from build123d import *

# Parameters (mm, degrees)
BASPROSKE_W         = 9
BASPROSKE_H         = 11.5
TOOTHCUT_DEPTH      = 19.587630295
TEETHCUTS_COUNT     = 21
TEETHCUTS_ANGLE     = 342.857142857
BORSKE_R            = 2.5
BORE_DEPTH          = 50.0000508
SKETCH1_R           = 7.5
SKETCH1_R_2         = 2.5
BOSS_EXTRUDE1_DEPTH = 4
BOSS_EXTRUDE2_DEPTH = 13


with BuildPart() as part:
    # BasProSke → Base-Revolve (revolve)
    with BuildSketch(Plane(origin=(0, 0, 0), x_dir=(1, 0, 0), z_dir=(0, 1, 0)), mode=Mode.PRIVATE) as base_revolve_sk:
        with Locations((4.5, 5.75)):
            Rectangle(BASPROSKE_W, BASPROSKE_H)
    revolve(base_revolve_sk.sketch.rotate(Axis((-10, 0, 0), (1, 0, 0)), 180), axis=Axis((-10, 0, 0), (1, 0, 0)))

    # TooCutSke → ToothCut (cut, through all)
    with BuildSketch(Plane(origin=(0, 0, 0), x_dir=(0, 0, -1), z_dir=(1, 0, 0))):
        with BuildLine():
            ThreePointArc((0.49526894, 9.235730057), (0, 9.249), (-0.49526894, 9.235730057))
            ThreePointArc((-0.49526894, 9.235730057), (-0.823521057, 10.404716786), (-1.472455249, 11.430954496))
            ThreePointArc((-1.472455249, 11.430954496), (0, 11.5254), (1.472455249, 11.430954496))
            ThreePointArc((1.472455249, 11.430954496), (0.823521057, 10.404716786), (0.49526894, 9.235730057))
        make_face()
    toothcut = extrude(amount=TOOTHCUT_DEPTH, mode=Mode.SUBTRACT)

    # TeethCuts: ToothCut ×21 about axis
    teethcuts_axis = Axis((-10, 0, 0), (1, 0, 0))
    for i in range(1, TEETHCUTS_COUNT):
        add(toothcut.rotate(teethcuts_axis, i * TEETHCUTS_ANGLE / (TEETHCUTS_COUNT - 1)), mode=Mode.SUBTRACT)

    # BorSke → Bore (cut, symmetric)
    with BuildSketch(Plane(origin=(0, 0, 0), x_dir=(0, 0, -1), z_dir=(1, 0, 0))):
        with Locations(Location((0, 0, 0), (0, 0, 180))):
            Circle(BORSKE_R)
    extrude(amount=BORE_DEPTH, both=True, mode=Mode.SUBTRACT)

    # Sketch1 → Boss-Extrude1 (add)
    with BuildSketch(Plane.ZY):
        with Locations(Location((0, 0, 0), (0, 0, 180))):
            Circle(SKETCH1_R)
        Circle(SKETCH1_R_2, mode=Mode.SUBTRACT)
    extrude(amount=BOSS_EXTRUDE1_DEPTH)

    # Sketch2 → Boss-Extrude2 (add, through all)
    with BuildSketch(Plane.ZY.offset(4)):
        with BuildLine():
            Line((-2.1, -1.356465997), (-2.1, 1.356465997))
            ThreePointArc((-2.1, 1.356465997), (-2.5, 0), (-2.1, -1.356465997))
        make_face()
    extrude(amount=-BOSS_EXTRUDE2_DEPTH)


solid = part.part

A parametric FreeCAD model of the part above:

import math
import FreeCAD as App
import Part
import Sketcher

doc = App.newDocument("Part")
body = doc.addObject("PartDesign::Body", "Body")

sketch1 = doc.addObject("Sketcher::SketchObject", "Sketch")
body.addObject(sketch1)
sketch1.AttachmentSupport = (doc.XZ_Plane, [""])
sketch1.MapMode = "FlatFace"
sketch1.addGeometry([
    Part.LineSegment(App.Vector(0, -12, 0), App.Vector(0, 0, 0)),
    Part.LineSegment(App.Vector(0, 0, 0), App.Vector(9, 0, 0)),
    Part.LineSegment(App.Vector(9, 0, 0), App.Vector(9, -12, 0)),
    Part.LineSegment(App.Vector(9, -12, 0), App.Vector(0, -12, 0)),
], False)
sketch1.addConstraint([
    Sketcher.Constraint("Coincident", 0, 2, 1, 1),
    Sketcher.Constraint("Coincident", 1, 2, 2, 1),
    Sketcher.Constraint("Coincident", 2, 2, 3, 1),
    Sketcher.Constraint("Coincident", 3, 2, 0, 1),
    Sketcher.Constraint("Vertical", 0),
    Sketcher.Constraint("Horizontal", 1),
    Sketcher.Constraint("Vertical", 2),
    Sketcher.Constraint("Horizontal", 3),
    Sketcher.Constraint("Coincident", 0, 2, -1, 1),
    Sketcher.Constraint("DistanceX", 1, 1, 1, 2, 9.0),
    Sketcher.Constraint("DistanceY", 0, 1, 0, 2, 11.5),
])
revolution = doc.addObject("PartDesign::Revolution", "Revolution")
body.addObject(revolution)
revolution.Profile = sketch1
revolution.ReferenceAxis = (sketch1, ["H_Axis"])
revolution.Angle = 360

sketch2 = doc.addObject("Sketcher::SketchObject", "Sketch001")
body.addObject(sketch2)
sketch2.AttachmentSupport = (doc.YZ_Plane, [""])
sketch2.MapMode = "FlatFace"
sketch2.addGeometry([
    Part.ArcOfCircle(Part.Circle(App.Vector(0, 0, 0), App.Vector(0, 0, 1), 9.2), math.radians(-3.07), math.radians(3.07)),
    Part.ArcOfCircle(Part.Circle(App.Vector(8.7, -4.7, 0), App.Vector(0, 0, 1), 4.2), math.radians(49), math.radians(83)),
    Part.ArcOfCircle(Part.Circle(App.Vector(0, 0, 0), App.Vector(0, 0, 1), 11.5), math.radians(-7.34), math.radians(7.34)),
    Part.ArcOfCircle(Part.Circle(App.Vector(8.7, 4.7, 0), App.Vector(0, 0, 1), 4.2), math.radians(-83), math.radians(-49)),
], False)
sketch2.addConstraint([
    Sketcher.Constraint("Coincident", 0, 1, 1, 2),
    Sketcher.Constraint("Coincident", 1, 1, 2, 1),
    Sketcher.Constraint("Coincident", 2, 2, 3, 2),
    Sketcher.Constraint("Coincident", 3, 1, 0, 2),
    Sketcher.Constraint("Coincident", 0, 3, -1, 1),
    Sketcher.Constraint("Coincident", 2, 3, -1, 1),
    Sketcher.Constraint("Equal", 1, 3),
    Sketcher.Constraint("Symmetric", 1, 3, 3, 3, -1),
    Sketcher.Constraint("Radius", 1, 4.2),
    Sketcher.Constraint("Radius", 0, 9.249),
    Sketcher.Constraint("Radius", 2, 11.5254),
    Sketcher.Constraint("DistanceX", -1, 1, 1, 3, 8.696701),
    Sketcher.Constraint("DistanceX", -1, 1, 0, 1, 9.23573),
])
pocket1 = doc.addObject("PartDesign::Pocket", "Pocket")
body.addObject(pocket1)
pocket1.Profile = sketch2
pocket1.Type = "ThroughAll"
pocket1.Reversed = True
doc.recompute()

polarpattern = doc.addObject("PartDesign::PolarPattern", "PolarPattern")
body.addObject(polarpattern)
polarpattern.Originals = [pocket1]
polarpattern.Axis = (doc.X_Axis, [""])
polarpattern.Angle = 360
polarpattern.Occurrences = 21
body.Tip = polarpattern

sketch3 = doc.addObject("Sketcher::SketchObject", "Sketch002")
body.addObject(sketch3)
sketch3.AttachmentSupport = (doc.YZ_Plane, [""])
sketch3.MapMode = "FlatFace"
sketch3.addGeometry(Part.Circle(App.Vector(0, 0, 0), App.Vector(0, 0, 1), 2.5), False)
sketch3.addConstraint([
    Sketcher.Constraint("Coincident", 0, 3, -1, 1),
    Sketcher.Constraint("Diameter", 0, 5.0),
])
pocket2 = doc.addObject("PartDesign::Pocket", "Pocket001")
body.addObject(pocket2)
pocket2.Profile = sketch3
pocket2.Length = 100.000102
pocket2.Midplane = True

sketch4 = doc.addObject("Sketcher::SketchObject", "Sketch003")
body.addObject(sketch4)
sketch4.AttachmentSupport = (doc.YZ_Plane, [""])
sketch4.MapMode = "FlatFace"
sketch4.addGeometry([
    Part.Circle(App.Vector(0, 0, 0), App.Vector(0, 0, 1), 7.5),
    Part.Circle(App.Vector(0, 0, 0), App.Vector(0, 0, 1), 2.5),
], False)
sketch4.addConstraint([
    Sketcher.Constraint("Coincident", 0, 3, -1, 1),
    Sketcher.Constraint("Coincident", 1, 3, -1, 1),
    Sketcher.Constraint("Diameter", 0, 15.0),
    Sketcher.Constraint("Diameter", 1, 5.0),
])
pad1 = doc.addObject("PartDesign::Pad", "Pad")
body.addObject(pad1)
pad1.Profile = sketch4
pad1.Length = 4
pad1.Reversed = True

sketch5 = doc.addObject("Sketcher::SketchObject", "Sketch004")
body.addObject(sketch5)
sketch5.AttachmentSupport = (doc.YZ_Plane, [""])
sketch5.MapMode = "FlatFace"
sketch5.AttachmentOffset = App.Placement(App.Vector(0, 0, -4), App.Rotation())
sketch5.addGeometry([
    Part.LineSegment(App.Vector(-1.4, -2.1, 0), App.Vector(1.4, -2.1, 0)),
    Part.ArcOfCircle(Part.Circle(App.Vector(0, 0, 0), App.Vector(0, 0, 1), 2.5), math.radians(-123), math.radians(-57)),
], False)
sketch5.addConstraint([
    Sketcher.Constraint("Coincident", 0, 1, 1, 1),
    Sketcher.Constraint("Coincident", 1, 2, 0, 2),
    Sketcher.Constraint("Horizontal", 0),
    Sketcher.Constraint("Coincident", 1, 3, -1, 1),
    Sketcher.Constraint("Radius", 1, 2.5),
    Sketcher.Constraint("DistanceY", 0, 1, -1, 1, 2.1),
])
pad2 = doc.addObject("PartDesign::Pad", "Pad001")
body.addObject(pad2)
pad2.Profile = sketch5
pad2.Length = 13

doc.recompute()
